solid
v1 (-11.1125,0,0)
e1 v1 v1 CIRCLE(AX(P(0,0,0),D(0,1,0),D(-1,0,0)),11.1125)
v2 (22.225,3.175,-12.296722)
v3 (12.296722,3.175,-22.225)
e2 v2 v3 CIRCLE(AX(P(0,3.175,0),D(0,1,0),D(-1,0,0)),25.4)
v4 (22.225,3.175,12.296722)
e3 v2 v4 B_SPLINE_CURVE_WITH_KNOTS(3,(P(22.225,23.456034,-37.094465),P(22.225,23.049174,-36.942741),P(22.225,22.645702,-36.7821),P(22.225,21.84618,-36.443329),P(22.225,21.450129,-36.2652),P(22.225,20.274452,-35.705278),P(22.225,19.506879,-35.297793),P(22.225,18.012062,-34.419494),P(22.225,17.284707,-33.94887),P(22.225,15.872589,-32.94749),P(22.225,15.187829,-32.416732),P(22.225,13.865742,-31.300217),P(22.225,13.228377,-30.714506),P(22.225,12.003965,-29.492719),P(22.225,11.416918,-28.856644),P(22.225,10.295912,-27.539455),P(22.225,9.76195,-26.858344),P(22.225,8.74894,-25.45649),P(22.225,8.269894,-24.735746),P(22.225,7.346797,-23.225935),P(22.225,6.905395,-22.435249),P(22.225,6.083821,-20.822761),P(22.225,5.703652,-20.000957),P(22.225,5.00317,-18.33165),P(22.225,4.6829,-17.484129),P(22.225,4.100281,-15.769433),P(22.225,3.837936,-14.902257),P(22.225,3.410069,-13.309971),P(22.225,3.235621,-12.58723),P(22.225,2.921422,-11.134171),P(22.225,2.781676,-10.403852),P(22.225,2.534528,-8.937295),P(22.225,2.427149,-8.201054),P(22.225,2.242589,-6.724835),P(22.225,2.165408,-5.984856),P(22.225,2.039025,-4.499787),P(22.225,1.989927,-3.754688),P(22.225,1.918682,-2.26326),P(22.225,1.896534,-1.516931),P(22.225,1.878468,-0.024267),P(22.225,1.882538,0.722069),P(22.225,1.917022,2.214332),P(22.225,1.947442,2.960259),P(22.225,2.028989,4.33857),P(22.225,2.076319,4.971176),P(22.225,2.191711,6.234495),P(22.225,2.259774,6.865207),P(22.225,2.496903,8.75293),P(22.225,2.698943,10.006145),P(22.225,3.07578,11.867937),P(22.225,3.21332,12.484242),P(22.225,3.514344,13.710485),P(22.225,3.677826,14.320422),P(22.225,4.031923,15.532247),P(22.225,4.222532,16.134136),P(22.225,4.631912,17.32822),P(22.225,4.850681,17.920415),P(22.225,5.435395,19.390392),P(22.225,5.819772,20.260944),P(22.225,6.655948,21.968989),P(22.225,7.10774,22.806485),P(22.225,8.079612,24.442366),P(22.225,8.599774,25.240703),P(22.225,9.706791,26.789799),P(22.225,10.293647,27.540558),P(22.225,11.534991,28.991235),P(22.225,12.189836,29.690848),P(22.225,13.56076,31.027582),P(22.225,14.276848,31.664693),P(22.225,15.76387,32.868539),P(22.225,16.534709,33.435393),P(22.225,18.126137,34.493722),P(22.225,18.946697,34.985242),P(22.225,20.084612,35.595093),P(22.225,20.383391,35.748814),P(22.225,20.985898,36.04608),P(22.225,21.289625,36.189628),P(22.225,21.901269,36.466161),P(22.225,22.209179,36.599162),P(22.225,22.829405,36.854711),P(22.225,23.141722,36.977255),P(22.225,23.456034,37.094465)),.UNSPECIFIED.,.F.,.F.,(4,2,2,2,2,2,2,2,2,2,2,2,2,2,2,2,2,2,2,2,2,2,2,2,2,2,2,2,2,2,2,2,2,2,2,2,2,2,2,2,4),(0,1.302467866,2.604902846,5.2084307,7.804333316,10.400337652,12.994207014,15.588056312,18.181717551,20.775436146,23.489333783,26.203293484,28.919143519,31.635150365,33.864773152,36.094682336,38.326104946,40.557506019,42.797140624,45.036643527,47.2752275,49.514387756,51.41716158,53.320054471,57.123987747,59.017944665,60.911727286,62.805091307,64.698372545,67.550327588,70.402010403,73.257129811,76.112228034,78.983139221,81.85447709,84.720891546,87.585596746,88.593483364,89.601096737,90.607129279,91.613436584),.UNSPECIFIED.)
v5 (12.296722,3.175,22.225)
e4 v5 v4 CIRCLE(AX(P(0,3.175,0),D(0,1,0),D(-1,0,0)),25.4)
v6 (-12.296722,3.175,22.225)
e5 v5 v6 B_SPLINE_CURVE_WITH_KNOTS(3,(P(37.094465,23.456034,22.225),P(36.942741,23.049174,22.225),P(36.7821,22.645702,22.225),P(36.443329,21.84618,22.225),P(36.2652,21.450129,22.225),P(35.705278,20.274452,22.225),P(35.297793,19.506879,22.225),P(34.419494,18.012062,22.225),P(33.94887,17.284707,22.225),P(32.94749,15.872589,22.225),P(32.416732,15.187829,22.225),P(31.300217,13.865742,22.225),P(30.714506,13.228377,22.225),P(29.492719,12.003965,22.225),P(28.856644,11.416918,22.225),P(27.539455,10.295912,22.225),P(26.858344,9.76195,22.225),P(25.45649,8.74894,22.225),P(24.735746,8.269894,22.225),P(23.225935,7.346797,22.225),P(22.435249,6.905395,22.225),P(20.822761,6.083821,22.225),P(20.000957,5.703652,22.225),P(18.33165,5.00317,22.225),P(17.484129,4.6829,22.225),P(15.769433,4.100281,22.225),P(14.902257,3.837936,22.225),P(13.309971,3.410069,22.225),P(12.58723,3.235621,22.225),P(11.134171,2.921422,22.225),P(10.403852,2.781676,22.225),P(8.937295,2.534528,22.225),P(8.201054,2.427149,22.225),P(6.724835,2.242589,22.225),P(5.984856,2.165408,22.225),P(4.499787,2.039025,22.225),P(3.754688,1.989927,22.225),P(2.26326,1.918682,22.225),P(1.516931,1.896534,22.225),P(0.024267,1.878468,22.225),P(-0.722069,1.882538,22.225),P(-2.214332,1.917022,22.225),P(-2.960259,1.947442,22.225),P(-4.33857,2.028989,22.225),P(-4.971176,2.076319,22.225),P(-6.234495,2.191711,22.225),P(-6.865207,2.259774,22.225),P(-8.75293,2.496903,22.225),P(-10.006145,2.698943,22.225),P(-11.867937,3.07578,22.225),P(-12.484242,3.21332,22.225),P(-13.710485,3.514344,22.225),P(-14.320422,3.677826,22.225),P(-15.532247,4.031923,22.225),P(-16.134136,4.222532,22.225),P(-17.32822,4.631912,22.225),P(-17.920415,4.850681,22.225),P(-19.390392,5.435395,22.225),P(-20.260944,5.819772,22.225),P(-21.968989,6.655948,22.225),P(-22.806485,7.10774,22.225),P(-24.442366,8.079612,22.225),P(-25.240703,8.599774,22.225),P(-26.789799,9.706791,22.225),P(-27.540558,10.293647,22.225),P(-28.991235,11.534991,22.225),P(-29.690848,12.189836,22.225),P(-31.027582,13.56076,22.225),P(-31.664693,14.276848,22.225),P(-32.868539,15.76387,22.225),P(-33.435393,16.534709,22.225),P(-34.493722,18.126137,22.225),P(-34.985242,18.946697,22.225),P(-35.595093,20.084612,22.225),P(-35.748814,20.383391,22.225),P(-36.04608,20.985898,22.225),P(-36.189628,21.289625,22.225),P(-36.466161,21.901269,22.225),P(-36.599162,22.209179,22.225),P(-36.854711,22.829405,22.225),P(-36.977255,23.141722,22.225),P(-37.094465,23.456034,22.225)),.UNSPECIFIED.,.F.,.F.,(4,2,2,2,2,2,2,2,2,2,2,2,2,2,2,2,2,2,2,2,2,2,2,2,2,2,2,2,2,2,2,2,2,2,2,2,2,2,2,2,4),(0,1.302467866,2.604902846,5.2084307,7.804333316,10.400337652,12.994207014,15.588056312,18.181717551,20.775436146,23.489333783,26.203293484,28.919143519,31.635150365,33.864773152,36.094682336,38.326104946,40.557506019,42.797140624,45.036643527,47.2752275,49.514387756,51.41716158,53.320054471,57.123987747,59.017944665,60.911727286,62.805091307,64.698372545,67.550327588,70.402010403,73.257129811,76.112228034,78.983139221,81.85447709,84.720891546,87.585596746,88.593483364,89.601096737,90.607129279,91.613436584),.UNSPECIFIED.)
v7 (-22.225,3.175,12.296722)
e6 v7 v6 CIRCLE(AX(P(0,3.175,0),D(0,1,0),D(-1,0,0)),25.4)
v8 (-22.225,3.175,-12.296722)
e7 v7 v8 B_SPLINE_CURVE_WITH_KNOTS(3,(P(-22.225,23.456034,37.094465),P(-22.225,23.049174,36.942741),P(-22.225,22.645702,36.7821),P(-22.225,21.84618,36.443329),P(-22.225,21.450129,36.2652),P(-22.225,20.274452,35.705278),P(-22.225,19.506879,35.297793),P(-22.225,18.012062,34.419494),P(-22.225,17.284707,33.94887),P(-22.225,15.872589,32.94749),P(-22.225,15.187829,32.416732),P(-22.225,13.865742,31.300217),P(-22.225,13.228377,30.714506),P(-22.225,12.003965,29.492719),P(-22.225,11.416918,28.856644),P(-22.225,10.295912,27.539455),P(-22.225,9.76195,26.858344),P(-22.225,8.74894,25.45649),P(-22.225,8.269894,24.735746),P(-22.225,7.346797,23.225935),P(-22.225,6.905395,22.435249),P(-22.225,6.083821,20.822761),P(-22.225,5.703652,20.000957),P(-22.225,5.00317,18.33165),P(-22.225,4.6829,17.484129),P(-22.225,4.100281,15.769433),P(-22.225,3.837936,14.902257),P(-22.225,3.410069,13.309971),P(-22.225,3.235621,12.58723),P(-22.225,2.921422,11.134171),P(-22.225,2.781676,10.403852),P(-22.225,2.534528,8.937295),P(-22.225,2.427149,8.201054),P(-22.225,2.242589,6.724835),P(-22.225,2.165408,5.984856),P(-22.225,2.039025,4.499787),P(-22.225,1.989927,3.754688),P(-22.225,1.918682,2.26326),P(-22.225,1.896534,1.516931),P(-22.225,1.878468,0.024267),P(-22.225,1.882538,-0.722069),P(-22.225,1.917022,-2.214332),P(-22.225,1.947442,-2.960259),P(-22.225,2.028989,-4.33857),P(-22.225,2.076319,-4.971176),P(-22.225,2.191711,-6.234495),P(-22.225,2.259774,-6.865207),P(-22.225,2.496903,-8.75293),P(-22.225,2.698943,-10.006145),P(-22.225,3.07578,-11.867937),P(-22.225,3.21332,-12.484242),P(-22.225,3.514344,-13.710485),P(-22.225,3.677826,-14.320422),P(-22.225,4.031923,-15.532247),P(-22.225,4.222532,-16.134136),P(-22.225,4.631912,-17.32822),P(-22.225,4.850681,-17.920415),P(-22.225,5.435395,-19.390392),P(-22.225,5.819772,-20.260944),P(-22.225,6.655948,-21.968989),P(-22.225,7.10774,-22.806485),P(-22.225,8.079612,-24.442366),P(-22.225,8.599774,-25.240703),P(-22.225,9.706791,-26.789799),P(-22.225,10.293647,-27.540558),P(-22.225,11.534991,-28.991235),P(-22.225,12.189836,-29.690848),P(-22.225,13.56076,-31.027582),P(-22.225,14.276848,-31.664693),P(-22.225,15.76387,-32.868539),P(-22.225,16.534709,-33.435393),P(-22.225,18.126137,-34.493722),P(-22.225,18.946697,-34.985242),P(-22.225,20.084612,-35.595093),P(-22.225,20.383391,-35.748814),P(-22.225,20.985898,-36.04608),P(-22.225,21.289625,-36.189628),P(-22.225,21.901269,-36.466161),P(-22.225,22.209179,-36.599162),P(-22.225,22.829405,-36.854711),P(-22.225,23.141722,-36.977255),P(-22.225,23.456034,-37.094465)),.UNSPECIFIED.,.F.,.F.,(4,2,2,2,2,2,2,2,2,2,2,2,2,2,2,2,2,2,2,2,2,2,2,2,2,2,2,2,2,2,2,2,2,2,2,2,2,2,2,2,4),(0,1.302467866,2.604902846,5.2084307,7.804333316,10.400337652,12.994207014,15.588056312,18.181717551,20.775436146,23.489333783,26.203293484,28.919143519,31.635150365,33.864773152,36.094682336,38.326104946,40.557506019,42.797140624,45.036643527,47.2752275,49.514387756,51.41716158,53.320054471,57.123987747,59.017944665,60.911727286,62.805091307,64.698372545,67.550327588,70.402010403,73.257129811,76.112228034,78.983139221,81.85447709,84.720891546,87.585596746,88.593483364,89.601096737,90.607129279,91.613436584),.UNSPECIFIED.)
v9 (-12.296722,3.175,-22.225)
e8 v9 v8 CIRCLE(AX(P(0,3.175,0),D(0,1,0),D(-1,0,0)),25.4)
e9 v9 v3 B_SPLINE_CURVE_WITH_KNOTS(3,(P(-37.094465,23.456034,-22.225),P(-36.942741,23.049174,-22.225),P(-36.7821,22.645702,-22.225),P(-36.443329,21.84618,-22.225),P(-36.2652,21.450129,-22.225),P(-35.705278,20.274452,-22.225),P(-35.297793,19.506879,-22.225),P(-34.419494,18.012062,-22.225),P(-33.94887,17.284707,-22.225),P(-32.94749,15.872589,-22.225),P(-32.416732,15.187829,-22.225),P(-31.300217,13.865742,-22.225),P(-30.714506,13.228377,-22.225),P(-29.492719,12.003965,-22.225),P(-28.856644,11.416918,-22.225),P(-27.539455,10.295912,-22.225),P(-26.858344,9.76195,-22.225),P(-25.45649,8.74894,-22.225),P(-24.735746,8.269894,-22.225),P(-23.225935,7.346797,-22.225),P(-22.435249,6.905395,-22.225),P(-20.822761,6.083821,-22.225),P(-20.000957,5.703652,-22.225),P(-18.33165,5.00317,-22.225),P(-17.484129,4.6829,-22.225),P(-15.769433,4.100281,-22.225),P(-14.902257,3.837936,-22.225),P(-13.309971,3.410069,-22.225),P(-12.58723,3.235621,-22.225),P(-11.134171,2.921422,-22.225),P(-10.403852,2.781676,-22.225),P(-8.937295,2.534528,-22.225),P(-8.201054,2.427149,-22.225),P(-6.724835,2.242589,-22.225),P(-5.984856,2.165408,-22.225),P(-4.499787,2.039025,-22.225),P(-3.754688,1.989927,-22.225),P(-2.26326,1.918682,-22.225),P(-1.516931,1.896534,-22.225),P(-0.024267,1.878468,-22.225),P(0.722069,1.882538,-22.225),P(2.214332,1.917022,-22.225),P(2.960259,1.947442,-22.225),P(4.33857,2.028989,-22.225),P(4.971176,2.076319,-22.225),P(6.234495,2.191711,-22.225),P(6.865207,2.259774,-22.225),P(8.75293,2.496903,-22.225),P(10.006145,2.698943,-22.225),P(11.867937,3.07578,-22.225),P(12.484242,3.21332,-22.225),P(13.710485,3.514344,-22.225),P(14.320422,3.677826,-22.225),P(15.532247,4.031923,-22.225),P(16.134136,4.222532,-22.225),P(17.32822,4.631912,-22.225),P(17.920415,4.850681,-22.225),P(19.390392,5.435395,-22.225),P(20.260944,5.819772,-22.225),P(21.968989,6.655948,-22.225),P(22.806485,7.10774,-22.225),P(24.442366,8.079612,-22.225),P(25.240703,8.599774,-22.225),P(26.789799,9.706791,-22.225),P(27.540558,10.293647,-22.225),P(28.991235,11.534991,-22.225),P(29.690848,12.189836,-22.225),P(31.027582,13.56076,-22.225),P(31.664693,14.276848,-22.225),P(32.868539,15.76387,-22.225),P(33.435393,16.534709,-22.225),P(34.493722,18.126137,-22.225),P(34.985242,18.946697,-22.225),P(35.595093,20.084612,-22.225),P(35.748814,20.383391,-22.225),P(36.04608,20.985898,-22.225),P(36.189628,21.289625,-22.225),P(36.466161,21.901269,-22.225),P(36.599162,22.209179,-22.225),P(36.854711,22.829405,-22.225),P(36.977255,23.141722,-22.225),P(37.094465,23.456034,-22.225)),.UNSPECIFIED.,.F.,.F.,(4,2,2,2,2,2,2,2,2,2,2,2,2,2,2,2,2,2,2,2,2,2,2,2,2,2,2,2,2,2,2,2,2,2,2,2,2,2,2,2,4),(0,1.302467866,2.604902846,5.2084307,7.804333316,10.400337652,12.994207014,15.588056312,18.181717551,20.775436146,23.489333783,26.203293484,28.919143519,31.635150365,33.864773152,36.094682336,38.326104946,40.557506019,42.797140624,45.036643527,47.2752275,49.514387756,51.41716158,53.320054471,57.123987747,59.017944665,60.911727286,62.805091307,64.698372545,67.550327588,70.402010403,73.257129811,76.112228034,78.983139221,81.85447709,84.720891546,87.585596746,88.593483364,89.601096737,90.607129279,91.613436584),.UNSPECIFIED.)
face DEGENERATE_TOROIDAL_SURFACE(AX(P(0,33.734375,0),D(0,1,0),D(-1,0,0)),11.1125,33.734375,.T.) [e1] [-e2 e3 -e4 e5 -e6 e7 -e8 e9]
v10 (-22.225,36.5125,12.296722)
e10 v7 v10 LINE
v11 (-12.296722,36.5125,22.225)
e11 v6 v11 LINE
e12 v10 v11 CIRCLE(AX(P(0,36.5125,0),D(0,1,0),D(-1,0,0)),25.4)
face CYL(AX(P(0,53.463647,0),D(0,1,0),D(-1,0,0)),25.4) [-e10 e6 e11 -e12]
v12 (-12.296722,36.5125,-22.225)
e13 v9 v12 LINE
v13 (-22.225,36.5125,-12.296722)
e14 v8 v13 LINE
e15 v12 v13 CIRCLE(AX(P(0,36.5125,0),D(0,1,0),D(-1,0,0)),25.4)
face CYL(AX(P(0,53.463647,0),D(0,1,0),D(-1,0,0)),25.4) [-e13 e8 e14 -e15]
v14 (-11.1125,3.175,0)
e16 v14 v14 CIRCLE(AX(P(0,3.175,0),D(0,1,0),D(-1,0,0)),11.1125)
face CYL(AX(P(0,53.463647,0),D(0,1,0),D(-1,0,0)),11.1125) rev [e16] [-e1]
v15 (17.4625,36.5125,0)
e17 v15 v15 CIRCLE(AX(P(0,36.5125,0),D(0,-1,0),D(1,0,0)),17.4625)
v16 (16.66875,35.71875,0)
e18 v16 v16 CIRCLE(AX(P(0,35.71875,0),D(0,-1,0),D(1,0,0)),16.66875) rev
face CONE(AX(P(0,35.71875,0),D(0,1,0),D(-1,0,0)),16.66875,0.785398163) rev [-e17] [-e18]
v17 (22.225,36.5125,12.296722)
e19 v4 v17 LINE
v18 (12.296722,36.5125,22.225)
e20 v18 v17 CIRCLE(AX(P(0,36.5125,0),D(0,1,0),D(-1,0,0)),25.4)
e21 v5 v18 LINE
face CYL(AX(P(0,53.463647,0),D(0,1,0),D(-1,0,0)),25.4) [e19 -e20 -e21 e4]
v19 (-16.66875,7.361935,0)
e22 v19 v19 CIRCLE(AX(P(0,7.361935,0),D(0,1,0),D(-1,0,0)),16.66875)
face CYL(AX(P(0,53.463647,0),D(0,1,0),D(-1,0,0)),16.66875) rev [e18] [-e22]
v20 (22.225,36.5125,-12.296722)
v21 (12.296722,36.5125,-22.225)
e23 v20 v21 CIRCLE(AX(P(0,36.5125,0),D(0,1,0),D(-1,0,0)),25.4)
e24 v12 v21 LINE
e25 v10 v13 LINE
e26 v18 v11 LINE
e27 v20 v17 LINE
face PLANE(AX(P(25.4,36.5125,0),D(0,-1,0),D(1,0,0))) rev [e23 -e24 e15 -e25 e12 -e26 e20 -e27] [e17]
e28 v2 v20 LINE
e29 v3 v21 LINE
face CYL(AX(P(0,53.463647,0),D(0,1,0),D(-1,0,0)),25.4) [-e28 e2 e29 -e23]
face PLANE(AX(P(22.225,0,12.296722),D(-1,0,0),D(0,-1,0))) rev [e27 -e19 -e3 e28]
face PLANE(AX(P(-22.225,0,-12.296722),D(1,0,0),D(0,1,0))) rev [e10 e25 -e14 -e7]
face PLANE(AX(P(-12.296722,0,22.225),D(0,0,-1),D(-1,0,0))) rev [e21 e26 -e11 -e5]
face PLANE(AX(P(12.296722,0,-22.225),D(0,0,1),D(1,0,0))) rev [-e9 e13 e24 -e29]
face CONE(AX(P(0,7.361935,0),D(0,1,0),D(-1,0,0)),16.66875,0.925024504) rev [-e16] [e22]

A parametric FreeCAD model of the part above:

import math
import FreeCAD as App
import Part
import Sketcher
from FreeCAD import Vector
Q = App.Units.Quantity


def edges_at(feature, points):
    """Names of the edges that pass closest to the given points."""
    edges = feature.Shape.Edges
    near = lambda p: min(range(len(edges)), key=lambda i: edges[i].distToShape(Part.Vertex(*p))[0])
    return sorted({f"Edge{near(p) + 1}" for p in points})

doc = App.newDocument("Part")
body = doc.addObject("PartDesign::Body", "Body")

# Sketch on XY plane
sketch1 = body.newObject("Sketcher::SketchObject", "Sketch")
sketch1.AttachmentSupport = (doc.getObject("XY_Plane"), [""])
sketch1.MapMode = "FlatFace"
sketch1.addGeometry(Part.LineSegment(Vector(25.4, 36.5125, 0), Vector(16.66875, 36.5125, 0)), False)
sketch1.addGeometry(Part.LineSegment(Vector(16.66875, 36.5125, 0), Vector(16.66875, 7.361935, 0)), False)
sketch1.addGeometry(Part.LineSegment(Vector(16.66875, 7.361935, 0), Vector(11.1125, 3.175, 0)), False)
sketch1.addGeometry(Part.LineSegment(Vector(11.1125, 3.175, 0), Vector(11.1125, 0, 0)), False)
sketch1.addGeometry(Part.ArcOfCircle(Part.Circle(Vector(11.1125, 33.734375, 0), Vector(0, 0, 1), 33.734375), math.radians(-90), math.radians(-64.942385)), False)
sketch1.addGeometry(Part.LineSegment(Vector(25.4, 3.175, 0), Vector(25.4, 36.5125, 0)), False)
sketch1.addConstraint(Sketcher.Constraint("Coincident", 0, 2, 1, 1))
sketch1.addConstraint(Sketcher.Constraint("Coincident", 1, 2, 2, 1))
sketch1.addConstraint(Sketcher.Constraint("Coincident", 2, 2, 3, 1))
sketch1.addConstraint(Sketcher.Constraint("Coincident", 3, 2, 4, 1))
sketch1.addConstraint(Sketcher.Constraint("Coincident", 4, 2, 5, 1))
sketch1.addConstraint(Sketcher.Constraint("Coincident", 5, 2, 0, 1))
sketch1.addConstraint(Sketcher.Constraint("Horizontal", 0))
sketch1.addConstraint(Sketcher.Constraint("Vertical", 1))
sketch1.addConstraint(Sketcher.Constraint("Vertical", 3))
sketch1.addConstraint(Sketcher.Constraint("Vertical", 5))
sketch1.addConstraint(Sketcher.Constraint("PointOnObject", 3, 2, -1))
sketch1.addConstraint(Sketcher.Constraint("Horizontal", 2, 2, 4, 2))
sketch1.addConstraint(Sketcher.Constraint("Vertical", 4, 3, 2, 2))
sketch1.addConstraint(Sketcher.Constraint("DistanceX", -1, 1, 4, 2, Q("1 in")))
sketch1.addConstraint(Sketcher.Constraint("Angle", 2, Q("-143 deg")))
sketch1.addConstraint(Sketcher.Constraint("Radius", 4, Q("1.328125 in")))
sketch1.addConstraint(Sketcher.Constraint("DistanceX", 0, 2, 0, 1, Q("0.34375 in")))
sketch1.addConstraint(Sketcher.Constraint("DistanceY", 3, 2, 3, 1, Q("0.125 in")))
sketch1.addConstraint(Sketcher.Constraint("DistanceY", 5, 1, 5, 2, Q("1.3125 in")))
revolution = body.newObject("PartDesign::Revolution", "Revolution")
revolution.Profile = sketch1
revolution.ReferenceAxis = (sketch1, ["V_Axis"])
revolution.Angle = 360
doc.recompute()

chamfer = body.newObject("PartDesign::Chamfer", "Chamfer")
chamfer.Base = (revolution, edges_at(revolution, [(-16.669, 36.513, 0)]))
chamfer.Size = Q("0.03125 in")

# Sketch on XZ plane
sketch2 = body.newObject("Sketcher::SketchObject", "Sketch001")
sketch2.AttachmentSupport = (doc.getObject("XZ_Plane"), [""])
sketch2.MapMode = "FlatFace"
sketch2.AttachmentOffset = App.Placement(Vector(0, 0, -1.4375 * 25.4), App.Rotation())
sketch2.addGeometry(Part.LineSegment(Vector(-22.225, 12.296722, 0), Vector(-22.225, -12.296722, 0)), False)
sketch2.addGeometry(Part.ArcOfCircle(Part.Circle(Vector(0, 0, 0), Vector(0, 0, 1), 25.4), math.radians(151.044976), math.radians(208.955024)), False)
sketch2.addConstraint(Sketcher.Constraint("Coincident", 0, 1, 1, 1))
sketch2.addConstraint(Sketcher.Constraint("Coincident", 1, 2, 0, 2))
sketch2.addConstraint(Sketcher.Constraint("Vertical", 0))
sketch2.addConstraint(Sketcher.Constraint("Coincident", 1, 3, -1, 1))
sketch2.addConstraint(Sketcher.Constraint("Radius", 1, Q("1 in")))
sketch2.addConstraint(Sketcher.Constraint("DistanceX", 0, 1, -1, 1, Q("0.875 in")))
pocket1 = body.newObject("PartDesign::Pocket", "Pocket")
pocket1.Profile = sketch2
pocket1.Type = "ThroughAll"
pocket1.Reversed = True
doc.recompute()

polarpattern = body.newObject("PartDesign::PolarPattern", "PolarPattern")
polarpattern.Originals = [pocket1]
polarpattern.Axis = (doc.getObject("Y_Axis"), [""])
polarpattern.Angle = 360
polarpattern.Occurrences = 4
body.Tip = polarpattern

doc.recompute()
